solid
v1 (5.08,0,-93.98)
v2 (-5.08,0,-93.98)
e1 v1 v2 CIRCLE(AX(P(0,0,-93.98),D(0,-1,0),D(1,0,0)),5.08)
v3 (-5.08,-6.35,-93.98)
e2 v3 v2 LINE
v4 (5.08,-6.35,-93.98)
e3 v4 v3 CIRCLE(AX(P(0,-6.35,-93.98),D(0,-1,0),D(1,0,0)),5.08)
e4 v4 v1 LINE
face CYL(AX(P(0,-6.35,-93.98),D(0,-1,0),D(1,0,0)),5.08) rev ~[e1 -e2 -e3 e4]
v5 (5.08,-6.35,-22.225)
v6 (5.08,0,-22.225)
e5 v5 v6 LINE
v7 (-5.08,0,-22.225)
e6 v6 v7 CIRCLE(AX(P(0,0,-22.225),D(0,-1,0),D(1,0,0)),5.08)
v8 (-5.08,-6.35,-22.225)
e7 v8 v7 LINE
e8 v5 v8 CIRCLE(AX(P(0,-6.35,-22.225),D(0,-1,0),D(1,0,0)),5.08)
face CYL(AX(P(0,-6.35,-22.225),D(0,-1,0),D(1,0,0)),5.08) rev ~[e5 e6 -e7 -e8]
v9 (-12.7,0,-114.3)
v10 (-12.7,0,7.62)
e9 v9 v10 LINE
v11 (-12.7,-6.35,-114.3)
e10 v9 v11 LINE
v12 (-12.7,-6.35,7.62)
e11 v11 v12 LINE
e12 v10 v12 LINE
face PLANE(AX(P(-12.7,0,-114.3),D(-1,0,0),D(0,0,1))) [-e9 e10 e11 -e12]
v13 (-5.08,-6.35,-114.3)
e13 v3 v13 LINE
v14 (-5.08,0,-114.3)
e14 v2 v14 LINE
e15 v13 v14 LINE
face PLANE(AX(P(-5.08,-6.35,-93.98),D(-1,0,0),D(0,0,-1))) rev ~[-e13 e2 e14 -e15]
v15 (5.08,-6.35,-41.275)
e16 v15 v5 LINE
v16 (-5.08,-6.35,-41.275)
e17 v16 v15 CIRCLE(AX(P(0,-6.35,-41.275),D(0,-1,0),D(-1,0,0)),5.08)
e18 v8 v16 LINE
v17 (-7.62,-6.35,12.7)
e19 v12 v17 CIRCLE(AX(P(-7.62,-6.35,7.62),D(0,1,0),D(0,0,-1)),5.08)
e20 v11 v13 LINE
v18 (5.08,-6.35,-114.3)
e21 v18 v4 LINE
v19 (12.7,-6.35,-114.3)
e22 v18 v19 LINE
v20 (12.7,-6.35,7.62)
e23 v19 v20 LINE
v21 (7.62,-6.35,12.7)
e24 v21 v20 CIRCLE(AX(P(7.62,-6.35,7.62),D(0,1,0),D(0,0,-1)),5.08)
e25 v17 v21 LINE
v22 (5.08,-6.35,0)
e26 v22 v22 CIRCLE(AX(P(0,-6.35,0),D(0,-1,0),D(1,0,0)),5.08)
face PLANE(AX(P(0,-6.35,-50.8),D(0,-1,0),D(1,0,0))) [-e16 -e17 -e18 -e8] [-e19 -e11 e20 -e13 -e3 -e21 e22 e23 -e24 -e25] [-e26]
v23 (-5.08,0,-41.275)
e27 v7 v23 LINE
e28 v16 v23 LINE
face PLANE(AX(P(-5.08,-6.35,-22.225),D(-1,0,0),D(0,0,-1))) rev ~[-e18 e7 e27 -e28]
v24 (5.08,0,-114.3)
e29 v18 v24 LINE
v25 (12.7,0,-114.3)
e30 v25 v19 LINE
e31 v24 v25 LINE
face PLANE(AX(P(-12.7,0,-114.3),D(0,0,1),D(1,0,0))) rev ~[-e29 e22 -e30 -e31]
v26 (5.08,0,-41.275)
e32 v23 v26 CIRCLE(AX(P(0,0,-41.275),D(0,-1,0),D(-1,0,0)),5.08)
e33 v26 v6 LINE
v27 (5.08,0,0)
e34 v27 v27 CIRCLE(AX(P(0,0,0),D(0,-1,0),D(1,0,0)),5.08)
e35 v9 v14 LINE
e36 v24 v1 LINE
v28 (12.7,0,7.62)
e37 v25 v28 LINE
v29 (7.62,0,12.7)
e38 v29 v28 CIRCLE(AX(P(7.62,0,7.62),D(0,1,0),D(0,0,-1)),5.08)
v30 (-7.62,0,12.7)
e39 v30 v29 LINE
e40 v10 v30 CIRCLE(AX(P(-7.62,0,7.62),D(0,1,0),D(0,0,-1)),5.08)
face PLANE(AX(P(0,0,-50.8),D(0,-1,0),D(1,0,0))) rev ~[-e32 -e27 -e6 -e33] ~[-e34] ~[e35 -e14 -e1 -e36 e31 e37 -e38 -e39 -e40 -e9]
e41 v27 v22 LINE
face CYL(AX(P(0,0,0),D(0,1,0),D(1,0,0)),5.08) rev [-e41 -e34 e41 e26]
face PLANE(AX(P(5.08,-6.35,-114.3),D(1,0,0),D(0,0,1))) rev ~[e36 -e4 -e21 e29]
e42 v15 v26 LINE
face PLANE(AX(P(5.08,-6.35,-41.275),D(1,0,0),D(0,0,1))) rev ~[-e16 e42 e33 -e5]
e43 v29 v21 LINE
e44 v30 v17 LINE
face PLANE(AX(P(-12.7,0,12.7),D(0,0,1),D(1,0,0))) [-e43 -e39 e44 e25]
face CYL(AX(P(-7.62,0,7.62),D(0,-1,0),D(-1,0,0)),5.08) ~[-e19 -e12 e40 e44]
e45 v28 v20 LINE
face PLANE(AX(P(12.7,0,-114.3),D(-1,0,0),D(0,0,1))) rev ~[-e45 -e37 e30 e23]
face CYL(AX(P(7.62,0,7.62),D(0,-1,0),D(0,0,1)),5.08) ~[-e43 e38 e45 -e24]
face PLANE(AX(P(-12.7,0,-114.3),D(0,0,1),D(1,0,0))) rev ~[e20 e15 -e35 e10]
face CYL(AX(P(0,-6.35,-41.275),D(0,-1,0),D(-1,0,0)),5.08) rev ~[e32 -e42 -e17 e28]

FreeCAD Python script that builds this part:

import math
import FreeCAD as App
import Part
import Sketcher
from FreeCAD import Vector
Q = App.Units.Quantity


def edges_at(feature, points):
    """Names of the edges that pass closest to the given points."""
    edges = feature.Shape.Edges
    near = lambda p: min(range(len(edges)), key=lambda i: edges[i].distToShape(Part.Vertex(*p))[0])
    return sorted({f"Edge{near(p) + 1}" for p in points})

doc = App.newDocument("Part")
body = doc.addObject("PartDesign::Body", "Body")

# Sketch on XZ plane
sketch1 = body.newObject("Sketcher::SketchObject", "Sketch")
sketch1.AttachmentSupport = (doc.getObject("XZ_Plane"), [""])
sketch1.MapMode = "FlatFace"
sketch1.addGeometry([
    Part.LineSegment(Vector(-13, 13, 0), Vector(-13, -114, 0)),  # 0
    Part.LineSegment(Vector(-13, -114, 0), Vector(13, -114, 0)),  # 1
    Part.LineSegment(Vector(13, -114, 0), Vector(13, 13, 0)),  # 2
    Part.LineSegment(Vector(13, 13, 0), Vector(-13, 13, 0)),  # 3
    Part.Circle(Vector(0, 0, 0), Vector(0, 0, 1), 5),  # 4
], False)
sketch1.addConstraint([
    Sketcher.Constraint("Coincident", 0, 2, 1, 1),
    Sketcher.Constraint("Coincident", 1, 2, 2, 1),
    Sketcher.Constraint("Coincident", 2, 2, 3, 1),
    Sketcher.Constraint("Coincident", 3, 2, 0, 1),
    Sketcher.Constraint("Vertical", 0),
    Sketcher.Constraint("Horizontal", 1),
    Sketcher.Constraint("Vertical", 2),
    Sketcher.Constraint("Horizontal", 3),
    Sketcher.Constraint("Coincident", 4, 3, -1, 1),
    Sketcher.Constraint("Diameter", 4, Q("0.4 in")),
    Sketcher.Constraint("DistanceX", 1, 1, 1, 2, Q("1 in")),
    Sketcher.Constraint("DistanceY", 0, 2, 0, 1, Q("5 in")),
    Sketcher.Constraint("DistanceX", 0, 2, -1, 1, Q("0.5 in")),
    Sketcher.Constraint("DistanceY", 0, 2, -1, 1, Q("4.5 in")),
])
pad1 = body.newObject("PartDesign::Pad", "Pad")
pad1.Profile = sketch1
pad1.Length = Q("0.25 in")
doc.recompute()

fillet = body.newObject("PartDesign::Fillet", "Fillet")
fillet.Base = (pad1, edges_at(pad1, [(12.7, -3.175, 12.7), (-12.7, -3.175, 12.7)]))
fillet.Radius = Q("0.2 in")

# Sketch on XZ plane
sketch2 = body.newObject("Sketcher::SketchObject", "Sketch001")
sketch2.AttachmentSupport = (doc.getObject("XZ_Plane"), [""])
sketch2.MapMode = "FlatFace"
sketch2.AttachmentOffset = App.Placement(Vector(0, 0, 0.25 * 25.4), App.Rotation())
sketch2.addGeometry([
    Part.ArcOfCircle(Part.Circle(Vector(0, -41, 0), Vector(0, 0, 1), 5), math.radians(180), math.radians(360)),
    Part.LineSegment(Vector(5, -41, 0), Vector(5, -22, 0)),
    Part.ArcOfCircle(Part.Circle(Vector(0, -22, 0), Vector(0, 0, 1), 5), math.radians(0), math.radians(180)),
    Part.LineSegment(Vector(-5, -22, 0), Vector(-5, -41, 0)),
], False)
sketch2.addConstraint([
    Sketcher.Constraint("Tangent", 0, 2, 1, 1),
    Sketcher.Constraint("Tangent", 1, 2, 2, 1),
    Sketcher.Constraint("Tangent", 2, 2, 3, 1),
    Sketcher.Constraint("Tangent", 3, 2, 0, 1),
    Sketcher.Constraint("Vertical", 1),
    Sketcher.Constraint("Vertical", 3),
    Sketcher.Constraint("PointOnObject", 0, 3, -2),
    Sketcher.Constraint("Radius", 0, Q("0.2 in")),
    Sketcher.Constraint("DistanceY", 1, 1, 1, 2, Q("0.75 in")),
    Sketcher.Constraint("DistanceY", 0, 3, -1, 1, Q("1.625 in")),
])
pocket1 = body.newObject("PartDesign::Pocket", "Pocket")
pocket1.Profile = sketch2
pocket1.Length = Q("1 in")

# Sketch on XZ plane
sketch3 = body.newObject("Sketcher::SketchObject", "Sketch002")
sketch3.AttachmentSupport = (doc.getObject("XZ_Plane"), [""])
sketch3.MapMode = "FlatFace"
sketch3.AttachmentOffset = App.Placement(Vector(0, 0, 0.25 * 25.4), App.Rotation())
sketch3.addGeometry([
    Part.LineSegment(Vector(-5, -114, 0), Vector(5, -114, 0)),
    Part.LineSegment(Vector(5, -114, 0), Vector(5, -94, 0)),
    Part.ArcOfCircle(Part.Circle(Vector(0, -94, 0), Vector(0, 0, 1), 5), math.radians(0), math.radians(180)),
    Part.LineSegment(Vector(-5, -94, 0), Vector(-5, -114, 0)),
], False)
sketch3.addConstraint([
    Sketcher.Constraint("Coincident", 0, 2, 1, 1),
    Sketcher.Constraint("Tangent", 1, 2, 2, 1),
    Sketcher.Constraint("Tangent", 2, 2, 3, 1),
    Sketcher.Constraint("Coincident", 3, 2, 0, 1),
    Sketcher.Constraint("Horizontal", 0),
    Sketcher.Constraint("Vertical", 1),
    Sketcher.Constraint("Vertical", 3),
    Sketcher.Constraint("PointOnObject", 2, 3, -2),
    Sketcher.Constraint("Radius", 2, Q("0.2 in")),
    Sketcher.Constraint("DistanceY", 1, 1, 1, 2, Q("0.8 in")),
    Sketcher.Constraint("DistanceY", 2, 3, -1, 1, Q("3.7 in")),
])
pocket2 = body.newObject("PartDesign::Pocket", "Pocket001")
pocket2.Profile = sketch3
pocket2.Type = "ThroughAll"

doc.recompute()
